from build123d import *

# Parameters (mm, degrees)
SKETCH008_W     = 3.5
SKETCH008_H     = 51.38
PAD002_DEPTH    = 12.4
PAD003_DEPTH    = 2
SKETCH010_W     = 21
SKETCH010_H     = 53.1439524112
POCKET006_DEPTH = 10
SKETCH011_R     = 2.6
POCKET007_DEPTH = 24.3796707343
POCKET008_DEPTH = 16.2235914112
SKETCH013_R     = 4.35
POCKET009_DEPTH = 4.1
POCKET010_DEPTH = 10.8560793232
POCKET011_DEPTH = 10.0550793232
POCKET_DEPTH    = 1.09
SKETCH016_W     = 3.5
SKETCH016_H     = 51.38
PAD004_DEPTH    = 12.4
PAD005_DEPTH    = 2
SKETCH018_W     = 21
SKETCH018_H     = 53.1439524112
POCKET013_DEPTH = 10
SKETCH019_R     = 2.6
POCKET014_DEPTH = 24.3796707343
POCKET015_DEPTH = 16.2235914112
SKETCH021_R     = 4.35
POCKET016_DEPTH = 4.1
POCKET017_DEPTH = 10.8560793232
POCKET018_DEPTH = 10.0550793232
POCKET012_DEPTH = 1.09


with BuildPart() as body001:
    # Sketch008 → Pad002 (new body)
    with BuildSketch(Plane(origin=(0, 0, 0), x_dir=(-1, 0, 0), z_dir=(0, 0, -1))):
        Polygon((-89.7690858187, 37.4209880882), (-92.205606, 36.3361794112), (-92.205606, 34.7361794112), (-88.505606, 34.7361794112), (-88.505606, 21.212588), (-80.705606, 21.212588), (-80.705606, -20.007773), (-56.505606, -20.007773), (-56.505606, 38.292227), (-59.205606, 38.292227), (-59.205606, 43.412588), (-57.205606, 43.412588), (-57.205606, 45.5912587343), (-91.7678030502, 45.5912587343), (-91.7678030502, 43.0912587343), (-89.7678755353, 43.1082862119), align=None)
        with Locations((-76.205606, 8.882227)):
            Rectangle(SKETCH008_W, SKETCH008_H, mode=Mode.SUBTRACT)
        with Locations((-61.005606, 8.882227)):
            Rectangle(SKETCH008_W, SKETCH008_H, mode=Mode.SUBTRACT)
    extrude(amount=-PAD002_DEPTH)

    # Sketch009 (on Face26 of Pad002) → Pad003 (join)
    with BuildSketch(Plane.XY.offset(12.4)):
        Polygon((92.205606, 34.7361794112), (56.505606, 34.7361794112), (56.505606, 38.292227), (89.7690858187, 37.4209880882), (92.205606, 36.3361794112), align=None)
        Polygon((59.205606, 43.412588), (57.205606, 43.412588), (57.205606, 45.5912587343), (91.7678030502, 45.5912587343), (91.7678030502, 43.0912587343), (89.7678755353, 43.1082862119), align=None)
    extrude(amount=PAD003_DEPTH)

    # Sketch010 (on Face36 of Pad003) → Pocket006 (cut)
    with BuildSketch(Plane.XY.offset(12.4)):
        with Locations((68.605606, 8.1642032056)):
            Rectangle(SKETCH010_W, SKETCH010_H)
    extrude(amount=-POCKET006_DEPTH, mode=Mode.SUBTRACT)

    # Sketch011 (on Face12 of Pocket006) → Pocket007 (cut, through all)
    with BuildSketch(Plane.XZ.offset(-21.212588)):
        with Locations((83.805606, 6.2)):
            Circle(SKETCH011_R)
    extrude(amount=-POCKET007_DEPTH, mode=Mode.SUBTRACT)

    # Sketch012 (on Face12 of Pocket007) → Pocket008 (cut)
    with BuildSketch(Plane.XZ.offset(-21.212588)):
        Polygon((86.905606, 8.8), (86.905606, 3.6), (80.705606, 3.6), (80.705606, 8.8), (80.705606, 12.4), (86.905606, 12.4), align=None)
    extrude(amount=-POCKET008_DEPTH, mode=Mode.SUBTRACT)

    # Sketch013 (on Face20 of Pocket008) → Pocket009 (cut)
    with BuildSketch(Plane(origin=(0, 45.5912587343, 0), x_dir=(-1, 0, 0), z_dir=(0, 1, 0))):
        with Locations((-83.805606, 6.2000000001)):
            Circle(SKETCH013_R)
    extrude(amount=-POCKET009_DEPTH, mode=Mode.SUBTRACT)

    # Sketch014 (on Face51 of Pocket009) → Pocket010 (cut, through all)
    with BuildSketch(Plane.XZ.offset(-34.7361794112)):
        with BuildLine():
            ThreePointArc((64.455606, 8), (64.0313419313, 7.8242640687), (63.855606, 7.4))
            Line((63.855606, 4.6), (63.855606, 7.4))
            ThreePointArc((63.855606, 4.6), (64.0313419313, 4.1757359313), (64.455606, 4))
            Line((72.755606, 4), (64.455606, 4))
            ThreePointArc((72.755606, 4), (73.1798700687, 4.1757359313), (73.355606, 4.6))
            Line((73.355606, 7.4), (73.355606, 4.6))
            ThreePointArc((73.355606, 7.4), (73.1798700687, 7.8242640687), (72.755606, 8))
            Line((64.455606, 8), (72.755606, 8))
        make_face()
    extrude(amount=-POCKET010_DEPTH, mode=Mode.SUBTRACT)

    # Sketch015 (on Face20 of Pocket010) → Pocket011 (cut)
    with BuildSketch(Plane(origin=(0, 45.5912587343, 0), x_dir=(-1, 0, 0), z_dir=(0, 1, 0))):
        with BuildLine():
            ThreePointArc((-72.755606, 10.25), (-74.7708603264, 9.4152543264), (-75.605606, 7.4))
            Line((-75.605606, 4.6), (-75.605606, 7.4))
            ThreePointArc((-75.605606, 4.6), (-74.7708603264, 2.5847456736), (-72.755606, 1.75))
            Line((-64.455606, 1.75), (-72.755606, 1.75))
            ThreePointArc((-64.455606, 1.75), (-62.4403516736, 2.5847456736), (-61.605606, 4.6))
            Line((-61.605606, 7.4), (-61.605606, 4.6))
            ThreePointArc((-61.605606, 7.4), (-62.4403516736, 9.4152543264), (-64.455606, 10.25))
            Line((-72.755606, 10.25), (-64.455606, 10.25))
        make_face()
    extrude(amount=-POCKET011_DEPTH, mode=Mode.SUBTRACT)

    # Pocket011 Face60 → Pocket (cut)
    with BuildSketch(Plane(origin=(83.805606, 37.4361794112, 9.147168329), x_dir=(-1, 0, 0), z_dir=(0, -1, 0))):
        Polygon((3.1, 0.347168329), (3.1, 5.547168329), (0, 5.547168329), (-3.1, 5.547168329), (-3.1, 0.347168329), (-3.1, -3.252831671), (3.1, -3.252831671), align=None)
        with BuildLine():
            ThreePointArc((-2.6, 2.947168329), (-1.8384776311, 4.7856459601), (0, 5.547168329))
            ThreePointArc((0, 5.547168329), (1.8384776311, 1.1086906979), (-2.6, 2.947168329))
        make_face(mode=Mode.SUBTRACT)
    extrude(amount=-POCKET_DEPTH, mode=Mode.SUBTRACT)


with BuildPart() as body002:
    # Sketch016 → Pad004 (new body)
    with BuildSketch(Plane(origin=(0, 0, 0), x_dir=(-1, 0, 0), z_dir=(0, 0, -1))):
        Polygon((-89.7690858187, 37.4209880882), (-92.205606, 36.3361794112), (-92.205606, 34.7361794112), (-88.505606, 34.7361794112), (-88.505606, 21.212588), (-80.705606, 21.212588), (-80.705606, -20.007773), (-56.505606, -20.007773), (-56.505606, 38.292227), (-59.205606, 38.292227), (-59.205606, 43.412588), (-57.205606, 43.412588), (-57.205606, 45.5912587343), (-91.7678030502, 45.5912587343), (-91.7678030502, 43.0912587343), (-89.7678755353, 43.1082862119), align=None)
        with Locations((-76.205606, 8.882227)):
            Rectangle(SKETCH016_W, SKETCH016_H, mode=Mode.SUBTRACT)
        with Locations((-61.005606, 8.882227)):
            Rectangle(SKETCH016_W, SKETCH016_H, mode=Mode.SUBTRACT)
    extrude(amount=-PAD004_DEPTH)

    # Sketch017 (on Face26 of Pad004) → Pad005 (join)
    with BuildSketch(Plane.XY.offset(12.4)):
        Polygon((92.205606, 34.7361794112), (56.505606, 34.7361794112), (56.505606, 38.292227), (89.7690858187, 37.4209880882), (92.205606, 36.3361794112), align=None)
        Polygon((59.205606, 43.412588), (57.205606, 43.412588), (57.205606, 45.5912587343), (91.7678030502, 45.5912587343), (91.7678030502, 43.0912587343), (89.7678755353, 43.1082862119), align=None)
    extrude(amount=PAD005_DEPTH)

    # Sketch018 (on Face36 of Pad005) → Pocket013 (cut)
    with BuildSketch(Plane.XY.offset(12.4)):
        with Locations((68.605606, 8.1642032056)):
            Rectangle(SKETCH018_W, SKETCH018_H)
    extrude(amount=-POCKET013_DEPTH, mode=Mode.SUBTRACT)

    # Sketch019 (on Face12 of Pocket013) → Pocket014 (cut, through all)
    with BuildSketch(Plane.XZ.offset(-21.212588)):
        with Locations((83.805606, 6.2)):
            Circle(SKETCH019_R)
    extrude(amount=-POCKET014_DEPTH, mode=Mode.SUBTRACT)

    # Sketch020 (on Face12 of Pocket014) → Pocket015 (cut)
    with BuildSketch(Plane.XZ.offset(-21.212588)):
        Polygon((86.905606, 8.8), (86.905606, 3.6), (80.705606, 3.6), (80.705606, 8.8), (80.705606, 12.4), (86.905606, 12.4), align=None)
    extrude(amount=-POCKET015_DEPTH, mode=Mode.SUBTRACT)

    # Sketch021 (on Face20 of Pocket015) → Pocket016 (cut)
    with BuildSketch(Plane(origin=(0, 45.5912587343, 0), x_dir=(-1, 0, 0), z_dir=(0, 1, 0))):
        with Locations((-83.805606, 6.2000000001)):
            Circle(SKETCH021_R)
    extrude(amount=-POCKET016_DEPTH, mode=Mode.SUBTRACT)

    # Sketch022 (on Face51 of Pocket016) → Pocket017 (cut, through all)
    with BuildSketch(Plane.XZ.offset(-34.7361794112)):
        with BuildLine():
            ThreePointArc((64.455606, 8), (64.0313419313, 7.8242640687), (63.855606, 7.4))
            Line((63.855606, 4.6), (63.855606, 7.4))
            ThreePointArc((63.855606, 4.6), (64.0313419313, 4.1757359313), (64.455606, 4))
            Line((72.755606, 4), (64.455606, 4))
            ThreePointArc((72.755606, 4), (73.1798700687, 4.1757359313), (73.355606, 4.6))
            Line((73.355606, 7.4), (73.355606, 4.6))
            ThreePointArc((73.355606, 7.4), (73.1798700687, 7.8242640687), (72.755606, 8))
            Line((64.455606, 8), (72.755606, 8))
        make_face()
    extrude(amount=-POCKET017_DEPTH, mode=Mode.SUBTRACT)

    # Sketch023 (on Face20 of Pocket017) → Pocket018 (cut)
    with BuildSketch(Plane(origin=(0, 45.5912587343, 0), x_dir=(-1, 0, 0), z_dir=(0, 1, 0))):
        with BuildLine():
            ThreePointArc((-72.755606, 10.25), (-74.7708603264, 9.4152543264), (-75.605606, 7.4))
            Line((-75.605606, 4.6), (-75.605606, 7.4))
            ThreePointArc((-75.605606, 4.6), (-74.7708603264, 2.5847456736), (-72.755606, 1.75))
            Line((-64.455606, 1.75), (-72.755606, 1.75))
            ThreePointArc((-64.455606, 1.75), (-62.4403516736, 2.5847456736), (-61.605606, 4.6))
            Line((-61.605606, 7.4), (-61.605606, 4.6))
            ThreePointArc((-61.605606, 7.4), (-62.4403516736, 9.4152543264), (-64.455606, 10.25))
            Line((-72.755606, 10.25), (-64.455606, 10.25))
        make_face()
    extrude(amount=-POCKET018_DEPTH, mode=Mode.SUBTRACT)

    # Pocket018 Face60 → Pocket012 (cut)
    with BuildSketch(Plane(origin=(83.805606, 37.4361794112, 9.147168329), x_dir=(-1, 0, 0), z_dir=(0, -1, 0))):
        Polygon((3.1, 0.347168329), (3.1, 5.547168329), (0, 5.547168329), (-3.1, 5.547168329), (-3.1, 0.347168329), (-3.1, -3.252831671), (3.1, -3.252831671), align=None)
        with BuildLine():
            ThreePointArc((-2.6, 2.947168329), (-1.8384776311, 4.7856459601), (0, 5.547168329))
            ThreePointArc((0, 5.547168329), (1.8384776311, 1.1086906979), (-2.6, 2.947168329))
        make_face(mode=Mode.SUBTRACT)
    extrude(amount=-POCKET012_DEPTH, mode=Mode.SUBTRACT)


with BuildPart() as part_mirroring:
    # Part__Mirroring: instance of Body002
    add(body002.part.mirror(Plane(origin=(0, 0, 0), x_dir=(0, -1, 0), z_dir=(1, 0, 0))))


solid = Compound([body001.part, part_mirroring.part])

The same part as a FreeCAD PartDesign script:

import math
import FreeCAD as App
import Part
import Sketcher
Q = App.Units.Quantity

doc = App.newDocument("Part")
body = doc.addObject("PartDesign::Body", "Body")

# Sketch on XY plane
sketch1 = body.newObject("Sketcher::SketchObject", "Sketch")
sketch1.AttachmentSupport = (doc.getObject("XY_Plane"), [""])
sketch1.MapMode = "FlatFace"
sketch1.addGeometry([
    Part.LineSegment(App.Vector(89.8, 37.4, 0), App.Vector(92.2, 36.3, 0)),  # 0
    Part.LineSegment(App.Vector(92.2, 36.3, 0), App.Vector(92.2, 34.7, 0)),  # 1
    Part.LineSegment(App.Vector(92.2, 34.7, 0), App.Vector(88.5, 34.7, 0)),  # 2
    Part.LineSegment(App.Vector(88.5, 34.7, 0), App.Vector(88.5, 21.2, 0)),  # 3
    Part.LineSegment(App.Vector(88.5, 21.2, 0), App.Vector(80.7, 21.2, 0)),  # 4
    Part.LineSegment(App.Vector(80.7, 21.2, 0), App.Vector(80.7, -20, 0)),  # 5
    Part.LineSegment(App.Vector(80.7, -20, 0), App.Vector(56.5, -20, 0)),  # 6
    Part.LineSegment(App.Vector(56.5, -20, 0), App.Vector(56.5, 38.3, 0)),  # 7
    Part.LineSegment(App.Vector(56.5, 38.3, 0), App.Vector(59.2, 38.3, 0)),  # 8
    Part.LineSegment(App.Vector(59.2, 38.3, 0), App.Vector(59.2, 43.4, 0)),  # 9
    Part.LineSegment(App.Vector(59.2, 43.4, 0), App.Vector(57.2, 43.4, 0)),  # 10
    Part.LineSegment(App.Vector(57.2, 43.4, 0), App.Vector(57.2, 45.6, 0)),  # 11
    Part.LineSegment(App.Vector(57.2, 45.6, 0), App.Vector(91.8, 45.6, 0)),  # 12
    Part.LineSegment(App.Vector(91.8, 45.6, 0), App.Vector(91.8, 43.1, 0)),  # 13
    Part.LineSegment(App.Vector(91.8, 43.1, 0), App.Vector(89.8, 43.1, 0)),  # 14
    Part.LineSegment(App.Vector(89.8, 43.1, 0), App.Vector(89.8, 37.4, 0)),  # 15
    Part.LineSegment(App.Vector(74.5, -16.8, 0), App.Vector(78, -16.8, 0)),  # 16
    Part.LineSegment(App.Vector(78, -16.8, 0), App.Vector(78, 34.6, 0)),  # 17
    Part.LineSegment(App.Vector(78, 34.6, 0), App.Vector(74.5, 34.6, 0)),  # 18
    Part.LineSegment(App.Vector(74.5, 34.6, 0), App.Vector(74.5, -16.8, 0)),  # 19
    Part.LineSegment(App.Vector(59.3, -16.8, 0), App.Vector(62.8, -16.8, 0)),  # 20
    Part.LineSegment(App.Vector(62.8, -16.8, 0), App.Vector(62.8, 34.6, 0)),  # 21
    Part.LineSegment(App.Vector(62.8, 34.6, 0), App.Vector(59.3, 34.6, 0)),  # 22
    Part.LineSegment(App.Vector(59.3, 34.6, 0), App.Vector(59.3, -16.8, 0)),  # 23
], False)
sketch1.addConstraint([
    Sketcher.Constraint("Coincident", 0, 2, 1, 1),
    Sketcher.Constraint("Coincident", 1, 2, 2, 1),
    Sketcher.Constraint("Coincident", 2, 2, 3, 1),
    Sketcher.Constraint("Coincident", 3, 2, 4, 1),
    Sketcher.Constraint("Coincident", 4, 2, 5, 1),
    Sketcher.Constraint("Coincident", 5, 2, 6, 1),
    Sketcher.Constraint("Coincident", 6, 2, 7, 1),
    Sketcher.Constraint("Coincident", 7, 2, 8, 1),
    Sketcher.Constraint("Coincident", 8, 2, 9, 1),
    Sketcher.Constraint("Coincident", 9, 2, 10, 1),
    Sketcher.Constraint("Coincident", 10, 2, 11, 1),
    Sketcher.Constraint("Coincident", 11, 2, 12, 1),
    Sketcher.Constraint("Coincident", 12, 2, 13, 1),
    Sketcher.Constraint("Coincident", 13, 2, 14, 1),
    Sketcher.Constraint("Coincident", 14, 2, 15, 1),
    Sketcher.Constraint("Coincident", 15, 2, 0, 1),
    Sketcher.Constraint("Coincident", 16, 2, 17, 1),
    Sketcher.Constraint("Coincident", 17, 2, 18, 1),
    Sketcher.Constraint("Coincident", 18, 2, 19, 1),
    Sketcher.Constraint("Coincident", 19, 2, 16, 1),
    Sketcher.Constraint("Coincident", 20, 2, 21, 1),
    Sketcher.Constraint("Coincident", 21, 2, 22, 1),
    Sketcher.Constraint("Coincident", 22, 2, 23, 1),
    Sketcher.Constraint("Coincident", 23, 2, 20, 1),
    Sketcher.Constraint("Vertical", 1),
    Sketcher.Constraint("Horizontal", 2),
    Sketcher.Constraint("Vertical", 3),
    Sketcher.Constraint("Horizontal", 4),
    Sketcher.Constraint("Vertical", 5),
    Sketcher.Constraint("Horizontal", 6),
    Sketcher.Constraint("Vertical", 7),
    Sketcher.Constraint("Horizontal", 8),
    Sketcher.Constraint("Vertical", 9),
    Sketcher.Constraint("Horizontal", 10),
    Sketcher.Constraint("Vertical", 11),
    Sketcher.Constraint("Horizontal", 12),
    Sketcher.Constraint("Vertical", 13),
    Sketcher.Constraint("Horizontal", 16),
    Sketcher.Constraint("Vertical", 17),
    Sketcher.Constraint("Horizontal", 18),
    Sketcher.Constraint("Vertical", 19),
    Sketcher.Constraint("Horizontal", 20),
    Sketcher.Constraint("Vertical", 21),
    Sketcher.Constraint("Horizontal", 22),
    Sketcher.Constraint("Vertical", 23),
    Sketcher.Constraint("Horizontal", 19, 2, 20, 2),
    Sketcher.Constraint("Horizontal", 18, 2, 21, 2),
    Sketcher.Constraint("Equal", 18, 20),
    Sketcher.Constraint("DistanceX", 10, 2, 10, 1, Q("2 mm")),
    Sketcher.Constraint("Angle", 0, Q("-24 deg")),
    Sketcher.Constraint("Distance", 14, Q("2 mm")),
    Sketcher.Constraint("DistanceX", 2, 2, 2, 1, Q("3.7 mm")),
    Sketcher.Constraint("DistanceX", 4, 2, 4, 1, Q("7.8 mm")),
    Sketcher.Constraint("DistanceX", 6, 2, 6, 1, Q("24.2 mm")),
    Sketcher.Constraint("DistanceX", 8, 1, 8, 2, Q("2.7 mm")),
    Sketcher.Constraint("DistanceX", 16, 1, 16, 2, Q("3.5 mm")),
    Sketcher.Constraint("DistanceY", 1, 2, 1, 1, Q("1.6 mm")),
    Sketcher.Constraint("DistanceY", 7, 1, 7, 2, Q("58.3 mm")),
    Sketcher.Constraint("DistanceY", 13, 2, 13, 1, Q("2.5 mm")),
    Sketcher.Constraint("DistanceY", 17, 1, 17, 2, Q("51.38 mm")),
    Sketcher.Constraint("DistanceY", 4, 2, 9, 2, Q("22.2 mm")),
    Sketcher.Constraint("DistanceY", 5, 2, 16, 2, Q("3.2 mm")),
    Sketcher.Constraint("DistanceX", 20, 2, 19, 2, Q("11.7 mm")),
    Sketcher.Constraint("DistanceX", 16, 2, 5, 2, Q("2.75 mm")),
    Sketcher.Constraint("Distance", 15, Q("5.687298 mm")),
    Sketcher.Constraint("DistanceY", 3, 2, 3, 1, Q("13.523591 mm")),
    Sketcher.Constraint("DistanceY", 5, 2, 5, 1, Q("41.220361 mm")),
    Sketcher.Constraint("DistanceY", 11, 1, 11, 2, Q("2.178671 mm")),
    Sketcher.Constraint("DistanceX", 12, 1, 12, 2, Q("34.562197 mm")),
    Sketcher.Constraint("DistanceY", -1, 1, 0, 2, Q("36.336179 mm")),
    Sketcher.Constraint("DistanceY", -1, 1, 15, 2, Q("37.420988 mm")),
    Sketcher.Constraint("DistanceX", -1, 1, 0, 2, Q("92.205606 mm")),
])
pad1 = body.newObject("PartDesign::Pad", "Pad")
pad1.Profile = sketch1
pad1.Length = 12.4

# Sketch on XY plane
sketch2 = body.newObject("Sketcher::SketchObject", "Sketch001")
sketch2.AttachmentSupport = (doc.getObject("XY_Plane"), [""])
sketch2.MapMode = "FlatFace"
sketch2.AttachmentOffset = App.Placement(App.Vector(0, 0, 12.4), App.Rotation())
sketch2.addGeometry([
    Part.LineSegment(App.Vector(56.5, 34.7, 0), App.Vector(92.2, 34.7, 0)),  # 0
    Part.LineSegment(App.Vector(92.2, 34.7, 0), App.Vector(92.2, 36.3, 0)),  # 1
    Part.LineSegment(App.Vector(92.2, 36.3, 0), App.Vector(89.8, 37.4, 0)),  # 2
    Part.LineSegment(App.Vector(89.8, 37.4, 0), App.Vector(56.5, 38.3, 0)),  # 3
    Part.LineSegment(App.Vector(56.5, 38.3, 0), App.Vector(56.5, 34.7, 0)),  # 4
    Part.LineSegment(App.Vector(57.2, 43.4, 0), App.Vector(59.2, 43.4, 0)),  # 5
    Part.LineSegment(App.Vector(59.2, 43.4, 0), App.Vector(89.8, 43.1, 0)),  # 6
    Part.LineSegment(App.Vector(89.8, 43.1, 0), App.Vector(91.8, 43.1, 0)),  # 7
    Part.LineSegment(App.Vector(91.8, 43.1, 0), App.Vector(91.8, 45.6, 0)),  # 8
    Part.LineSegment(App.Vector(91.8, 45.6, 0), App.Vector(57.2, 45.6, 0)),  # 9
    Part.LineSegment(App.Vector(57.2, 45.6, 0), App.Vector(57.2, 43.4, 0)),  # 10
], False)
sketch2.addConstraint([
    Sketcher.Constraint("Coincident", 0, 2, 1, 1),
    Sketcher.Constraint("Coincident", 1, 2, 2, 1),
    Sketcher.Constraint("Coincident", 2, 2, 3, 1),
    Sketcher.Constraint("Coincident", 3, 2, 4, 1),
    Sketcher.Constraint("Coincident", 4, 2, 0, 1),
    Sketcher.Constraint("Coincident", 5, 2, 6, 1),
    Sketcher.Constraint("Coincident", 6, 2, 7, 1),
    Sketcher.Constraint("Coincident", 7, 2, 8, 1),
    Sketcher.Constraint("Coincident", 8, 2, 9, 1),
    Sketcher.Constraint("Coincident", 9, 2, 10, 1),
    Sketcher.Constraint("Coincident", 10, 2, 5, 1),
    Sketcher.Constraint("Horizontal", 0),
    Sketcher.Constraint("Vertical", 1),
    Sketcher.Constraint("Vertical", 4),
    Sketcher.Constraint("Horizontal", 5),
    Sketcher.Constraint("Vertical", 8),
    Sketcher.Constraint("Horizontal", 9),
    Sketcher.Constraint("Vertical", 10),
    Sketcher.Constraint("DistanceX", 5, 1, 5, 2, Q("2 mm")),
    Sketcher.Constraint("Angle", 2, Q("156 deg")),
    Sketcher.Constraint("Distance", 7, Q("2 mm")),
    Sketcher.Constraint("DistanceX", 0, 1, 0, 2, Q("35.7 mm")),
    Sketcher.Constraint("DistanceY", 1, 1, 1, 2, Q("1.6 mm")),
    Sketcher.Constraint("DistanceY", 8, 1, 8, 2, Q("2.5 mm")),
    Sketcher.Constraint("DistanceX", 5, 2, 1, 2, Q("33 mm")),
    Sketcher.Constraint("DistanceY", 10, 2, 10, 1, Q("2.178671 mm")),
    Sketcher.Constraint("DistanceY", 2, 2, 5, 2, Q("5.9916 mm")),
    Sketcher.Constraint("DistanceY", 2, 2, 6, 2, Q("5.687298 mm")),
    Sketcher.Constraint("DistanceX", 9, 2, 9, 1, Q("34.562197 mm")),
    Sketcher.Constraint("DistanceY", 4, 2, 4, 1, Q("3.556048 mm")),
    Sketcher.Constraint("DistanceY", -1, 1, 0, 2, Q("34.736179 mm")),
    Sketcher.Constraint("DistanceY", -1, 1, 2, 2, Q("37.420988 mm")),
    Sketcher.Constraint("DistanceX", -1, 1, 0, 2, Q("92.205606 mm")),
])
pad2 = body.newObject("PartDesign::Pad", "Pad001")
pad2.Profile = sketch2
pad2.Length = 2

# Sketch on XY plane
sketch3 = body.newObject("Sketcher::SketchObject", "Sketch002")
sketch3.AttachmentSupport = (doc.getObject("XY_Plane"), [""])
sketch3.MapMode = "FlatFace"
sketch3.AttachmentOffset = App.Placement(App.Vector(0, 0, 12.4), App.Rotation())
sketch3.addGeometry([
    Part.LineSegment(App.Vector(58, 35, 0), App.Vector(58, -18, 0)),
    Part.LineSegment(App.Vector(58, -18, 0), App.Vector(79, -18, 0)),
    Part.LineSegment(App.Vector(79, -18, 0), App.Vector(79, 35, 0)),
    Part.LineSegment(App.Vector(79, 35, 0), App.Vector(58, 35, 0)),
], False)
sketch3.addConstraint([
    Sketcher.Constraint("Coincident", 0, 2, 1, 1),
    Sketcher.Constraint("Coincident", 1, 2, 2, 1),
    Sketcher.Constraint("Coincident", 2, 2, 3, 1),
    Sketcher.Constraint("Coincident", 3, 2, 0, 1),
    Sketcher.Constraint("Vertical", 0),
    Sketcher.Constraint("Horizontal", 1),
    Sketcher.Constraint("Vertical", 2),
    Sketcher.Constraint("Horizontal", 3),
    Sketcher.Constraint("DistanceX", 1, 1, 1, 2, Q("21 mm")),
    Sketcher.Constraint("DistanceY", 0, 2, 0, 1, Q("53.143952 mm")),
    Sketcher.Constraint("DistanceY", -1, 1, 2, 2, Q("34.736179 mm")),
    Sketcher.Constraint("DistanceX", -1, 1, 0, 2, Q("58.105606 mm")),
])
pocket1 = body.newObject("PartDesign::Pocket", "Pocket")
pocket1.Profile = sketch3
pocket1.Length = 10

# Sketch on XZ plane
sketch4 = body.newObject("Sketcher::SketchObject", "Sketch003")
sketch4.AttachmentSupport = (doc.getObject("XZ_Plane"), [""])
sketch4.MapMode = "FlatFace"
sketch4.AttachmentOffset = App.Placement(App.Vector(0, 0, -21.212588), App.Rotation())
sketch4.addGeometry(Part.Circle(App.Vector(83.8, 6.2, 0), App.Vector(0, 0, 1), 2.6), False)
sketch4.addConstraint([
    Sketcher.Constraint("Diameter", 0, Q("5.2 mm")),
    Sketcher.Constraint("DistanceY", -1, 1, 0, 3, Q("6.2 mm")),
    Sketcher.Constraint("DistanceX", -1, 1, 0, 3, Q("83.805606 mm")),
])
pocket2 = body.newObject("PartDesign::Pocket", "Pocket001")
pocket2.Profile = sketch4
pocket2.Type = "ThroughAll"

# Sketch on XZ plane
sketch5 = body.newObject("Sketcher::SketchObject", "Sketch004")
sketch5.AttachmentSupport = (doc.getObject("XZ_Plane"), [""])
sketch5.MapMode = "FlatFace"
sketch5.AttachmentOffset = App.Placement(App.Vector(0, 0, -21.212588), App.Rotation())
sketch5.addGeometry([
    Part.LineSegment(App.Vector(87, 4, 0), App.Vector(87, 12, 0)),
    Part.LineSegment(App.Vector(87, 12, 0), App.Vector(81, 12, 0)),
    Part.LineSegment(App.Vector(81, 12, 0), App.Vector(81, 4, 0)),
    Part.LineSegment(App.Vector(81, 4, 0), App.Vector(87, 4, 0)),
], False)
sketch5.addConstraint([
    Sketcher.Constraint("Coincident", 0, 2, 1, 1),
    Sketcher.Constraint("Coincident", 1, 2, 2, 1),
    Sketcher.Constraint("Coincident", 2, 2, 3, 1),
    Sketcher.Constraint("Coincident", 3, 2, 0, 1),
    Sketcher.Constraint("Vertical", 0),
    Sketcher.Constraint("Horizontal", 1),
    Sketcher.Constraint("Vertical", 2),
    Sketcher.Constraint("Horizontal", 3),
    Sketcher.Constraint("DistanceX", 1, 2, 1, 1, Q("6.2 mm")),
    Sketcher.Constraint("DistanceY", 0, 1, 0, 2, Q("8.8 mm")),
    Sketcher.Constraint("DistanceY", -1, 1, 0, 2, Q("12.4 mm")),
    Sketcher.Constraint("DistanceX", -1, 1, 0, 2, Q("86.905606 mm")),
])
pocket3 = body.newObject("PartDesign::Pocket", "Pocket002")
pocket3.Profile = sketch5
pocket3.Length = 16.223591

# Sketch on XZ plane
sketch6 = body.newObject("Sketcher::SketchObject", "Sketch005")
sketch6.AttachmentSupport = (doc.getObject("XZ_Plane"), [""])
sketch6.MapMode = "FlatFace"
sketch6.AttachmentOffset = App.Placement(App.Vector(0, 0, -45.591259), App.Rotation())
sketch6.addGeometry(Part.Circle(App.Vector(83.8, 6.2, 0), App.Vector(0, 0, 1), 4.3), False)
sketch6.addConstraint([
    Sketcher.Constraint("Diameter", 0, Q("8.7 mm")),
    Sketcher.Constraint("DistanceY", -1, 1, 0, 3, Q("6.2 mm")),
    Sketcher.Constraint("DistanceX", -1, 1, 0, 3, Q("83.805606 mm")),
])
pocket4 = body.newObject("PartDesign::Pocket", "Pocket003")
pocket4.Profile = sketch6
pocket4.Length = 4.1
pocket4.Reversed = True

# Sketch on XZ plane
sketch7 = body.newObject("Sketcher::SketchObject", "Sketch006")
sketch7.AttachmentSupport = (doc.getObject("XZ_Plane"), [""])
sketch7.MapMode = "FlatFace"
sketch7.AttachmentOffset = App.Placement(App.Vector(0, 0, -34.736179), App.Rotation())
sketch7.addGeometry([
    Part.ArcOfCircle(Part.Circle(App.Vector(64.5, 7.4, 0), App.Vector(0, 0, 1), 0.6), math.radians(90), math.radians(180)),  # 0
    Part.LineSegment(App.Vector(63.9, 7.4, 0), App.Vector(63.9, 4.6, 0)),  # 1
    Part.ArcOfCircle(Part.Circle(App.Vector(64.5, 4.6, 0), App.Vector(0, 0, 1), 0.6), math.radians(180), math.radians(270)),  # 2
    Part.LineSegment(App.Vector(64.5, 4, 0), App.Vector(72.8, 4, 0)),  # 3
    Part.ArcOfCircle(Part.Circle(App.Vector(72.8, 4.6, 0), App.Vector(0, 0, 1), 0.6), math.radians(-90), math.radians(0)),  # 4
    Part.LineSegment(App.Vector(73.4, 4.6, 0), App.Vector(73.4, 7.4, 0)),  # 5
    Part.ArcOfCircle(Part.Circle(App.Vector(72.8, 7.4, 0), App.Vector(0, 0, 1), 0.6), math.radians(0), math.radians(90)),  # 6
    Part.LineSegment(App.Vector(72.8, 8, 0), App.Vector(64.5, 8, 0)),  # 7
], False)
sketch7.addConstraint([
    Sketcher.Constraint("Tangent", 0, 2, 1, 1),
    Sketcher.Constraint("Tangent", 1, 2, 2, 1),
    Sketcher.Constraint("Tangent", 2, 2, 3, 1),
    Sketcher.Constraint("Tangent", 3, 2, 4, 1),
    Sketcher.Constraint("Tangent", 4, 2, 5, 1),
    Sketcher.Constraint("Tangent", 5, 2, 6, 1),
    Sketcher.Constraint("Tangent", 6, 2, 7, 1),
    Sketcher.Constraint("Tangent", 7, 2, 0, 1),
    Sketcher.Constraint("Vertical", 1),
    Sketcher.Constraint("Horizontal", 3),
    Sketcher.Constraint("Vertical", 5),
    Sketcher.Constraint("Horizontal", 7),
    Sketcher.Constraint("Equal", 0, 2),
    Sketcher.Constraint("Equal", 2, 4),
    Sketcher.Constraint("Equal", 4, 6),
    Sketcher.Constraint("Radius", 0, Q("0.6 mm")),
    Sketcher.Constraint("DistanceX", 3, 1, 3, 2, Q("8.3 mm")),
    Sketcher.Constraint("DistanceY", 1, 2, 1, 1, Q("2.8 mm")),
    Sketcher.Constraint("DistanceY", -1, 1, 2, 2, Q("4 mm")),
    Sketcher.Constraint("DistanceX", -1, 1, 0, 3, Q("64.455606 mm")),
])
pocket5 = body.newObject("PartDesign::Pocket", "Pocket004")
pocket5.Profile = sketch7
pocket5.Type = "ThroughAll"

# Sketch on XZ plane
sketch8 = body.newObject("Sketcher::SketchObject", "Sketch007")
sketch8.AttachmentSupport = (doc.getObject("XZ_Plane"), [""])
sketch8.MapMode = "FlatFace"
sketch8.AttachmentOffset = App.Placement(App.Vector(0, 0, -45.591259), App.Rotation())
sketch8.addGeometry([
    Part.ArcOfCircle(Part.Circle(App.Vector(72.8, 7.4, 0), App.Vector(0, 0, 1), 2.9), math.radians(0), math.radians(90)),  # 0
    Part.LineSegment(App.Vector(75.6, 7.4, 0), App.Vector(75.6, 4.6, 0)),  # 1
    Part.ArcOfCircle(Part.Circle(App.Vector(72.8, 4.6, 0), App.Vector(0, 0, 1), 2.9), math.radians(-90), math.radians(0)),  # 2
    Part.LineSegment(App.Vector(72.8, 1.8, 0), App.Vector(64.5, 1.8, 0)),  # 3
    Part.ArcOfCircle(Part.Circle(App.Vector(64.5, 4.6, 0), App.Vector(0, 0, 1), 2.9), math.radians(180), math.radians(270)),  # 4
    Part.LineSegment(App.Vector(61.6, 4.6, 0), App.Vector(61.6, 7.4, 0)),  # 5
    Part.ArcOfCircle(Part.Circle(App.Vector(64.5, 7.4, 0), App.Vector(0, 0, 1), 2.9), math.radians(90), math.radians(180)),  # 6
    Part.LineSegment(App.Vector(64.5, 10.2, 0), App.Vector(72.8, 10.2, 0)),  # 7
], False)
sketch8.addConstraint([
    Sketcher.Constraint("Tangent", 0, 1, 1, 1),
    Sketcher.Constraint("Tangent", 1, 2, 2, 2),
    Sketcher.Constraint("Tangent", 2, 1, 3, 1),
    Sketcher.Constraint("Tangent", 3, 2, 4, 2),
    Sketcher.Constraint("Tangent", 4, 1, 5, 1),
    Sketcher.Constraint("Tangent", 5, 2, 6, 2),
    Sketcher.Constraint("Tangent", 6, 1, 7, 1),
    Sketcher.Constraint("Tangent", 7, 2, 0, 2),
    Sketcher.Constraint("Vertical", 1),
    Sketcher.Constraint("Horizontal", 3),
    Sketcher.Constraint("Vertical", 5),
    Sketcher.Constraint("Horizontal", 7),
    Sketcher.Constraint("Equal", 0, 2),
    Sketcher.Constraint("Equal", 2, 4),
    Sketcher.Constraint("Equal", 4, 6),
    Sketcher.Constraint("Radius", 0, Q("2.85 mm")),
    Sketcher.Constraint("DistanceX", 3, 2, 3, 1, Q("8.3 mm")),
    Sketcher.Constraint("DistanceY", 1, 2, 1, 1, Q("2.8 mm")),
    Sketcher.Constraint("DistanceY", -1, 1, 0, 3, Q("7.4 mm")),
    Sketcher.Constraint("DistanceX", -1, 1, 0, 3, Q("72.755606 mm")),
])
pocket6 = body.newObject("PartDesign::Pocket", "Pocket005")
pocket6.Profile = sketch8
pocket6.Length = 10.055079
pocket6.Reversed = True

# Sketch on XZ plane
sketch9 = body.newObject("Sketcher::SketchObject", "Sketch008")
sketch9.AttachmentSupport = (doc.getObject("XZ_Plane"), [""])
sketch9.MapMode = "FlatFace"
sketch9.AttachmentOffset = App.Placement(App.Vector(0, 0, -37.436179), App.Rotation())
sketch9.addGeometry([
    Part.LineSegment(App.Vector(80.7, 12.4, 0), App.Vector(80.7, 3.6, 0)),  # 0
    Part.LineSegment(App.Vector(80.7, 3.6, 0), App.Vector(83.8, 3.6, 0)),  # 1
    Part.LineSegment(App.Vector(83.8, 3.6, 0), App.Vector(86.9, 3.6, 0)),  # 2
    Part.LineSegment(App.Vector(86.9, 3.6, 0), App.Vector(86.9, 12.4, 0)),  # 3
    Part.LineSegment(App.Vector(86.9, 12.4, 0), App.Vector(80.7, 12.4, 0)),  # 4
    Part.ArcOfCircle(Part.Circle(App.Vector(83.8, 6.2, 0), App.Vector(0, 0, 1), 2.6), math.radians(-90), math.radians(0)),  # 5
    Part.ArcOfCircle(Part.Circle(App.Vector(83.8, 6.2, 0), App.Vector(0, 0, 1), 2.6), math.radians(0), math.radians(270)),  # 6
], False)
sketch9.addConstraint([
    Sketcher.Constraint("Coincident", 0, 2, 1, 1),
    Sketcher.Constraint("Coincident", 1, 2, 2, 1),
    Sketcher.Constraint("Coincident", 2, 2, 3, 1),
    Sketcher.Constraint("Coincident", 3, 2, 4, 1),
    Sketcher.Constraint("Coincident", 4, 2, 0, 1),
    Sketcher.Constraint("Tangent", 5, 1, 6, 2),
    Sketcher.Constraint("Coincident", 6, 1, 5, 2),
    Sketcher.Constraint("Vertical", 0),
    Sketcher.Constraint("Horizontal", 1),
    Sketcher.Constraint("Horizontal", 2),
    Sketcher.Constraint("Vertical", 3),
    Sketcher.Constraint("Horizontal", 4),
    Sketcher.Constraint("Coincident", 5, 1, 1, 2),
    Sketcher.Constraint("Horizontal", 5, 3, 6, 1),
    Sketcher.Constraint("Vertical", 6, 3, 1, 2),
    Sketcher.Constraint("Equal", 1, 2),
    Sketcher.Constraint("Radius", 5, Q("2.6 mm")),
    Sketcher.Constraint("DistanceX", 1, 1, 1, 2, Q("3.1 mm")),
    Sketcher.Constraint("DistanceY", 0, 2, 0, 1, Q("8.8 mm")),
    Sketcher.Constraint("DistanceY", -1, 1, 5, 3, Q("6.2 mm")),
    Sketcher.Constraint("DistanceX", -1, 1, 5, 3, Q("83.805606 mm")),
])
pocket7 = body.newObject("PartDesign::Pocket", "Pocket006")
pocket7.Profile = sketch9
pocket7.Length = 1.09
body2 = doc.addObject("PartDesign::Body", "Body001")

# Sketch on XY plane
sketch10 = body2.newObject("Sketcher::SketchObject", "Sketch009")
sketch10.AttachmentSupport = (doc.getObject("XY_Plane001"), [""])
sketch10.MapMode = "FlatFace"
sketch10.addGeometry([
    Part.LineSegment(App.Vector(89.8, 37.4, 0), App.Vector(92.2, 36.3, 0)),  # 0
    Part.LineSegment(App.Vector(92.2, 36.3, 0), App.Vector(92.2, 34.7, 0)),  # 1
    Part.LineSegment(App.Vector(92.2, 34.7, 0), App.Vector(88.5, 34.7, 0)),  # 2
    Part.LineSegment(App.Vector(88.5, 34.7, 0), App.Vector(88.5, 21.2, 0)),  # 3
    Part.LineSegment(App.Vector(88.5, 21.2, 0), App.Vector(80.7, 21.2, 0)),  # 4
    Part.LineSegment(App.Vector(80.7, 21.2, 0), App.Vector(80.7, -20, 0)),  # 5
    Part.LineSegment(App.Vector(80.7, -20, 0), App.Vector(56.5, -20, 0)),  # 6
    Part.LineSegment(App.Vector(56.5, -20, 0), App.Vector(56.5, 38.3, 0)),  # 7
    Part.LineSegment(App.Vector(56.5, 38.3, 0), App.Vector(59.2, 38.3, 0)),  # 8
    Part.LineSegment(App.Vector(59.2, 38.3, 0), App.Vector(59.2, 43.4, 0)),  # 9
    Part.LineSegment(App.Vector(59.2, 43.4, 0), App.Vector(57.2, 43.4, 0)),  # 10
    Part.LineSegment(App.Vector(57.2, 43.4, 0), App.Vector(57.2, 45.6, 0)),  # 11
    Part.LineSegment(App.Vector(57.2, 45.6, 0), App.Vector(91.8, 45.6, 0)),  # 12
    Part.LineSegment(App.Vector(91.8, 45.6, 0), App.Vector(91.8, 43.1, 0)),  # 13
    Part.LineSegment(App.Vector(91.8, 43.1, 0), App.Vector(89.8, 43.1, 0)),  # 14
    Part.LineSegment(App.Vector(89.8, 43.1, 0), App.Vector(89.8, 37.4, 0)),  # 15
    Part.LineSegment(App.Vector(74.5, -16.8, 0), App.Vector(78, -16.8, 0)),  # 16
    Part.LineSegment(App.Vector(78, -16.8, 0), App.Vector(78, 34.6, 0)),  # 17
    Part.LineSegment(App.Vector(78, 34.6, 0), App.Vector(74.5, 34.6, 0)),  # 18
    Part.LineSegment(App.Vector(74.5, 34.6, 0), App.Vector(74.5, -16.8, 0)),  # 19
    Part.LineSegment(App.Vector(59.3, -16.8, 0), App.Vector(62.8, -16.8, 0)),  # 20
    Part.LineSegment(App.Vector(62.8, -16.8, 0), App.Vector(62.8, 34.6, 0)),  # 21
    Part.LineSegment(App.Vector(62.8, 34.6, 0), App.Vector(59.3, 34.6, 0)),  # 22
    Part.LineSegment(App.Vector(59.3, 34.6, 0), App.Vector(59.3, -16.8, 0)),  # 23
], False)
sketch10.addConstraint([
    Sketcher.Constraint("Coincident", 0, 2, 1, 1),
    Sketcher.Constraint("Coincident", 1, 2, 2, 1),
    Sketcher.Constraint("Coincident", 2, 2, 3, 1),
    Sketcher.Constraint("Coincident", 3, 2, 4, 1),
    Sketcher.Constraint("Coincident", 4, 2, 5, 1),
    Sketcher.Constraint("Coincident", 5, 2, 6, 1),
    Sketcher.Constraint("Coincident", 6, 2, 7, 1),
    Sketcher.Constraint("Coincident", 7, 2, 8, 1),
    Sketcher.Constraint("Coincident", 8, 2, 9, 1),
    Sketcher.Constraint("Coincident", 9, 2, 10, 1),
    Sketcher.Constraint("Coincident", 10, 2, 11, 1),
    Sketcher.Constraint("Coincident", 11, 2, 12, 1),
    Sketcher.Constraint("Coincident", 12, 2, 13, 1),
    Sketcher.Constraint("Coincident", 13, 2, 14, 1),
    Sketcher.Constraint("Coincident", 14, 2, 15, 1),
    Sketcher.Constraint("Coincident", 15, 2, 0, 1),
    Sketcher.Constraint("Coincident", 16, 2, 17, 1),
    Sketcher.Constraint("Coincident", 17, 2, 18, 1),
    Sketcher.Constraint("Coincident", 18, 2, 19, 1),
    Sketcher.Constraint("Coincident", 19, 2, 16, 1),
    Sketcher.Constraint("Coincident", 20, 2, 21, 1),
    Sketcher.Constraint("Coincident", 21, 2, 22, 1),
    Sketcher.Constraint("Coincident", 22, 2, 23, 1),
    Sketcher.Constraint("Coincident", 23, 2, 20, 1),
    Sketcher.Constraint("Vertical", 1),
    Sketcher.Constraint("Horizontal", 2),
    Sketcher.Constraint("Vertical", 3),
    Sketcher.Constraint("Horizontal", 4),
    Sketcher.Constraint("Vertical", 5),
    Sketcher.Constraint("Horizontal", 6),
    Sketcher.Constraint("Vertical", 7),
    Sketcher.Constraint("Horizontal", 8),
    Sketcher.Constraint("Vertical", 9),
    Sketcher.Constraint("Horizontal", 10),
    Sketcher.Constraint("Vertical", 11),
    Sketcher.Constraint("Horizontal", 12),
    Sketcher.Constraint("Vertical", 13),
    Sketcher.Constraint("Horizontal", 16),
    Sketcher.Constraint("Vertical", 17),
    Sketcher.Constraint("Horizontal", 18),
    Sketcher.Constraint("Vertical", 19),
    Sketcher.Constraint("Horizontal", 20),
    Sketcher.Constraint("Vertical", 21),
    Sketcher.Constraint("Horizontal", 22),
    Sketcher.Constraint("Vertical", 23),
    Sketcher.Constraint("Horizontal", 19, 2, 20, 2),
    Sketcher.Constraint("Horizontal", 18, 2, 21, 2),
    Sketcher.Constraint("Equal", 18, 20),
    Sketcher.Constraint("DistanceX", 10, 2, 10, 1, Q("2 mm")),
    Sketcher.Constraint("Angle", 0, Q("-24 deg")),
    Sketcher.Constraint("Distance", 14, Q("2 mm")),
    Sketcher.Constraint("DistanceX", 2, 2, 2, 1, Q("3.7 mm")),
    Sketcher.Constraint("DistanceX", 4, 2, 4, 1, Q("7.8 mm")),
    Sketcher.Constraint("DistanceX", 6, 2, 6, 1, Q("24.2 mm")),
    Sketcher.Constraint("DistanceX", 8, 1, 8, 2, Q("2.7 mm")),
    Sketcher.Constraint("DistanceX", 16, 1, 16, 2, Q("3.5 mm")),
    Sketcher.Constraint("DistanceY", 1, 2, 1, 1, Q("1.6 mm")),
    Sketcher.Constraint("DistanceY", 7, 1, 7, 2, Q("58.3 mm")),
    Sketcher.Constraint("DistanceY", 13, 2, 13, 1, Q("2.5 mm")),
    Sketcher.Constraint("DistanceY", 17, 1, 17, 2, Q("51.38 mm")),
    Sketcher.Constraint("DistanceY", 4, 2, 9, 2, Q("22.2 mm")),
    Sketcher.Constraint("DistanceY", 5, 2, 16, 2, Q("3.2 mm")),
    Sketcher.Constraint("DistanceX", 20, 2, 19, 2, Q("11.7 mm")),
    Sketcher.Constraint("DistanceX", 16, 2, 5, 2, Q("2.75 mm")),
    Sketcher.Constraint("Distance", 15, Q("5.687298 mm")),
    Sketcher.Constraint("DistanceY", 3, 2, 3, 1, Q("13.523591 mm")),
    Sketcher.Constraint("DistanceY", 5, 2, 5, 1, Q("41.220361 mm")),
    Sketcher.Constraint("DistanceY", 11, 1, 11, 2, Q("2.178671 mm")),
    Sketcher.Constraint("DistanceX", 12, 1, 12, 2, Q("34.562197 mm")),
    Sketcher.Constraint("DistanceY", -1, 1, 0, 2, Q("36.336179 mm")),
    Sketcher.Constraint("DistanceY", -1, 1, 15, 2, Q("37.420988 mm")),
    Sketcher.Constraint("DistanceX", -1, 1, 0, 2, Q("92.205606 mm")),
])
pad3 = body2.newObject("PartDesign::Pad", "Pad002")
pad3.Profile = sketch10
pad3.Length = 12.4

# Sketch on XY plane
sketch11 = body2.newObject("Sketcher::SketchObject", "Sketch010")
sketch11.AttachmentSupport = (doc.getObject("XY_Plane001"), [""])
sketch11.MapMode = "FlatFace"
sketch11.AttachmentOffset = App.Placement(App.Vector(0, 0, 12.4), App.Rotation())
sketch11.addGeometry([
    Part.LineSegment(App.Vector(56.5, 34.7, 0), App.Vector(92.2, 34.7, 0)),  # 0
    Part.LineSegment(App.Vector(92.2, 34.7, 0), App.Vector(92.2, 36.3, 0)),  # 1
    Part.LineSegment(App.Vector(92.2, 36.3, 0), App.Vector(89.8, 37.4, 0)),  # 2
    Part.LineSegment(App.Vector(89.8, 37.4, 0), App.Vector(56.5, 38.3, 0)),  # 3
    Part.LineSegment(App.Vector(56.5, 38.3, 0), App.Vector(56.5, 34.7, 0)),  # 4
    Part.LineSegment(App.Vector(57.2, 43.4, 0), App.Vector(59.2, 43.4, 0)),  # 5
    Part.LineSegment(App.Vector(59.2, 43.4, 0), App.Vector(89.8, 43.1, 0)),  # 6
    Part.LineSegment(App.Vector(89.8, 43.1, 0), App.Vector(91.8, 43.1, 0)),  # 7
    Part.LineSegment(App.Vector(91.8, 43.1, 0), App.Vector(91.8, 45.6, 0)),  # 8
    Part.LineSegment(App.Vector(91.8, 45.6, 0), App.Vector(57.2, 45.6, 0)),  # 9
    Part.LineSegment(App.Vector(57.2, 45.6, 0), App.Vector(57.2, 43.4, 0)),  # 10
], False)
sketch11.addConstraint([
    Sketcher.Constraint("Coincident", 0, 2, 1, 1),
    Sketcher.Constraint("Coincident", 1, 2, 2, 1),
    Sketcher.Constraint("Coincident", 2, 2, 3, 1),
    Sketcher.Constraint("Coincident", 3, 2, 4, 1),
    Sketcher.Constraint("Coincident", 4, 2, 0, 1),
    Sketcher.Constraint("Coincident", 5, 2, 6, 1),
    Sketcher.Constraint("Coincident", 6, 2, 7, 1),
    Sketcher.Constraint("Coincident", 7, 2, 8, 1),
    Sketcher.Constraint("Coincident", 8, 2, 9, 1),
    Sketcher.Constraint("Coincident", 9, 2, 10, 1),
    Sketcher.Constraint("Coincident", 10, 2, 5, 1),
    Sketcher.Constraint("Horizontal", 0),
    Sketcher.Constraint("Vertical", 1),
    Sketcher.Constraint("Vertical", 4),
    Sketcher.Constraint("Horizontal", 5),
    Sketcher.Constraint("Vertical", 8),
    Sketcher.Constraint("Horizontal", 9),
    Sketcher.Constraint("Vertical", 10),
    Sketcher.Constraint("DistanceX", 5, 1, 5, 2, Q("2 mm")),
    Sketcher.Constraint("Angle", 2, Q("156 deg")),
    Sketcher.Constraint("Distance", 7, Q("2 mm")),
    Sketcher.Constraint("DistanceX", 0, 1, 0, 2, Q("35.7 mm")),
    Sketcher.Constraint("DistanceY", 1, 1, 1, 2, Q("1.6 mm")),
    Sketcher.Constraint("DistanceY", 8, 1, 8, 2, Q("2.5 mm")),
    Sketcher.Constraint("DistanceX", 5, 2, 1, 2, Q("33 mm")),
    Sketcher.Constraint("DistanceY", 10, 2, 10, 1, Q("2.178671 mm")),
    Sketcher.Constraint("DistanceY", 2, 2, 5, 2, Q("5.9916 mm")),
    Sketcher.Constraint("DistanceY", 2, 2, 6, 2, Q("5.687298 mm")),
    Sketcher.Constraint("DistanceX", 9, 2, 9, 1, Q("34.562197 mm")),
    Sketcher.Constraint("DistanceY", 4, 2, 4, 1, Q("3.556048 mm")),
    Sketcher.Constraint("DistanceY", -1, 1, 0, 2, Q("34.736179 mm")),
    Sketcher.Constraint("DistanceY", -1, 1, 2, 2, Q("37.420988 mm")),
    Sketcher.Constraint("DistanceX", -1, 1, 0, 2, Q("92.205606 mm")),
])
pad4 = body2.newObject("PartDesign::Pad", "Pad003")
pad4.Profile = sketch11
pad4.Length = 2

# Sketch on XY plane
sketch12 = body2.newObject("Sketcher::SketchObject", "Sketch011")
sketch12.AttachmentSupport = (doc.getObject("XY_Plane001"), [""])
sketch12.MapMode = "FlatFace"
sketch12.AttachmentOffset = App.Placement(App.Vector(0, 0, 12.4), App.Rotation())
sketch12.addGeometry([
    Part.LineSegment(App.Vector(58, 35, 0), App.Vector(58, -18, 0)),
    Part.LineSegment(App.Vector(58, -18, 0), App.Vector(79, -18, 0)),
    Part.LineSegment(App.Vector(79, -18, 0), App.Vector(79, 35, 0)),
    Part.LineSegment(App.Vector(79, 35, 0), App.Vector(58, 35, 0)),
], False)
sketch12.addConstraint([
    Sketcher.Constraint("Coincident", 0, 2, 1, 1),
    Sketcher.Constraint("Coincident", 1, 2, 2, 1),
    Sketcher.Constraint("Coincident", 2, 2, 3, 1),
    Sketcher.Constraint("Coincident", 3, 2, 0, 1),
    Sketcher.Constraint("Vertical", 0),
    Sketcher.Constraint("Horizontal", 1),
    Sketcher.Constraint("Vertical", 2),
    Sketcher.Constraint("Horizontal", 3),
    Sketcher.Constraint("DistanceX", 1, 1, 1, 2, Q("21 mm")),
    Sketcher.Constraint("DistanceY", 0, 2, 0, 1, Q("53.143952 mm")),
    Sketcher.Constraint("DistanceY", -1, 1, 2, 2, Q("34.736179 mm")),
    Sketcher.Constraint("DistanceX", -1, 1, 0, 2, Q("58.105606 mm")),
])
pocket8 = body2.newObject("PartDesign::Pocket", "Pocket007")
pocket8.Profile = sketch12
pocket8.Length = 10

# Sketch on XZ plane
sketch13 = body2.newObject("Sketcher::SketchObject", "Sketch012")
sketch13.AttachmentSupport = (doc.getObject("XZ_Plane001"), [""])
sketch13.MapMode = "FlatFace"
sketch13.AttachmentOffset = App.Placement(App.Vector(0, 0, -21.212588), App.Rotation())
sketch13.addGeometry(Part.Circle(App.Vector(83.8, 6.2, 0), App.Vector(0, 0, 1), 2.6), False)
sketch13.addConstraint([
    Sketcher.Constraint("Diameter", 0, Q("5.2 mm")),
    Sketcher.Constraint("DistanceY", -1, 1, 0, 3, Q("6.2 mm")),
    Sketcher.Constraint("DistanceX", -1, 1, 0, 3, Q("83.805606 mm")),
])
pocket9 = body2.newObject("PartDesign::Pocket", "Pocket008")
pocket9.Profile = sketch13
pocket9.Type = "ThroughAll"

# Sketch on XZ plane
sketch14 = body2.newObject("Sketcher::SketchObject", "Sketch013")
sketch14.AttachmentSupport = (doc.getObject("XZ_Plane001"), [""])
sketch14.MapMode = "FlatFace"
sketch14.AttachmentOffset = App.Placement(App.Vector(0, 0, -21.212588), App.Rotation())
sketch14.addGeometry([
    Part.LineSegment(App.Vector(87, 4, 0), App.Vector(87, 12, 0)),
    Part.LineSegment(App.Vector(87, 12, 0), App.Vector(81, 12, 0)),
    Part.LineSegment(App.Vector(81, 12, 0), App.Vector(81, 4, 0)),
    Part.LineSegment(App.Vector(81, 4, 0), App.Vector(87, 4, 0)),
], False)
sketch14.addConstraint([
    Sketcher.Constraint("Coincident", 0, 2, 1, 1),
    Sketcher.Constraint("Coincident", 1, 2, 2, 1),
    Sketcher.Constraint("Coincident", 2, 2, 3, 1),
    Sketcher.Constraint("Coincident", 3, 2, 0, 1),
    Sketcher.Constraint("Vertical", 0),
    Sketcher.Constraint("Horizontal", 1),
    Sketcher.Constraint("Vertical", 2),
    Sketcher.Constraint("Horizontal", 3),
    Sketcher.Constraint("DistanceX", 1, 2, 1, 1, Q("6.2 mm")),
    Sketcher.Constraint("DistanceY", 0, 1, 0, 2, Q("8.8 mm")),
    Sketcher.Constraint("DistanceY", -1, 1, 0, 2, Q("12.4 mm")),
    Sketcher.Constraint("DistanceX", -1, 1, 0, 2, Q("86.905606 mm")),
])
pocket10 = body2.newObject("PartDesign::Pocket", "Pocket009")
pocket10.Profile = sketch14
pocket10.Length = 16.223591

# Sketch on XZ plane
sketch15 = body2.newObject("Sketcher::SketchObject", "Sketch014")
sketch15.AttachmentSupport = (doc.getObject("XZ_Plane001"), [""])
sketch15.MapMode = "FlatFace"
sketch15.AttachmentOffset = App.Placement(App.Vector(0, 0, -45.591259), App.Rotation())
sketch15.addGeometry(Part.Circle(App.Vector(83.8, 6.2, 0), App.Vector(0, 0, 1), 4.3), False)
sketch15.addConstraint([
    Sketcher.Constraint("Diameter", 0, Q("8.7 mm")),
    Sketcher.Constraint("DistanceY", -1, 1, 0, 3, Q("6.2 mm")),
    Sketcher.Constraint("DistanceX", -1, 1, 0, 3, Q("83.805606 mm")),
])
pocket11 = body2.newObject("PartDesign::Pocket", "Pocket010")
pocket11.Profile = sketch15
pocket11.Length = 4.1
pocket11.Reversed = True

# Sketch on XZ plane
sketch16 = body2.newObject("Sketcher::SketchObject", "Sketch015")
sketch16.AttachmentSupport = (doc.getObject("XZ_Plane001"), [""])
sketch16.MapMode = "FlatFace"
sketch16.AttachmentOffset = App.Placement(App.Vector(0, 0, -34.736179), App.Rotation())
sketch16.addGeometry([
    Part.ArcOfCircle(Part.Circle(App.Vector(64.5, 7.4, 0), App.Vector(0, 0, 1), 0.6), math.radians(90), math.radians(180)),  # 0
    Part.LineSegment(App.Vector(63.9, 7.4, 0), App.Vector(63.9, 4.6, 0)),  # 1
    Part.ArcOfCircle(Part.Circle(App.Vector(64.5, 4.6, 0), App.Vector(0, 0, 1), 0.6), math.radians(180), math.radians(270)),  # 2
    Part.LineSegment(App.Vector(64.5, 4, 0), App.Vector(72.8, 4, 0)),  # 3
    Part.ArcOfCircle(Part.Circle(App.Vector(72.8, 4.6, 0), App.Vector(0, 0, 1), 0.6), math.radians(-90), math.radians(0)),  # 4
    Part.LineSegment(App.Vector(73.4, 4.6, 0), App.Vector(73.4, 7.4, 0)),  # 5
    Part.ArcOfCircle(Part.Circle(App.Vector(72.8, 7.4, 0), App.Vector(0, 0, 1), 0.6), math.radians(0), math.radians(90)),  # 6
    Part.LineSegment(App.Vector(72.8, 8, 0), App.Vector(64.5, 8, 0)),  # 7
], False)
sketch16.addConstraint([
    Sketcher.Constraint("Tangent", 0, 2, 1, 1),
    Sketcher.Constraint("Tangent", 1, 2, 2, 1),
    Sketcher.Constraint("Tangent", 2, 2, 3, 1),
    Sketcher.Constraint("Tangent", 3, 2, 4, 1),
    Sketcher.Constraint("Tangent", 4, 2, 5, 1),
    Sketcher.Constraint("Tangent", 5, 2, 6, 1),
    Sketcher.Constraint("Tangent", 6, 2, 7, 1),
    Sketcher.Constraint("Tangent", 7, 2, 0, 1),
    Sketcher.Constraint("Vertical", 1),
    Sketcher.Constraint("Horizontal", 3),
    Sketcher.Constraint("Vertical", 5),
    Sketcher.Constraint("Horizontal", 7),
    Sketcher.Constraint("Equal", 0, 2),
    Sketcher.Constraint("Equal", 2, 4),
    Sketcher.Constraint("Equal", 4, 6),
    Sketcher.Constraint("Radius", 0, Q("0.6 mm")),
    Sketcher.Constraint("DistanceX", 3, 1, 3, 2, Q("8.3 mm")),
    Sketcher.Constraint("DistanceY", 1, 2, 1, 1, Q("2.8 mm")),
    Sketcher.Constraint("DistanceY", -1, 1, 2, 2, Q("4 mm")),
    Sketcher.Constraint("DistanceX", -1, 1, 0, 3, Q("64.455606 mm")),
])
pocket12 = body2.newObject("PartDesign::Pocket", "Pocket011")
pocket12.Profile = sketch16
pocket12.Type = "ThroughAll"

# Sketch on XZ plane
sketch17 = body2.newObject("Sketcher::SketchObject", "Sketch016")
sketch17.AttachmentSupport = (doc.getObject("XZ_Plane001"), [""])
sketch17.MapMode = "FlatFace"
sketch17.AttachmentOffset = App.Placement(App.Vector(0, 0, -45.591259), App.Rotation())
sketch17.addGeometry([
    Part.ArcOfCircle(Part.Circle(App.Vector(72.8, 7.4, 0), App.Vector(0, 0, 1), 2.9), math.radians(0), math.radians(90)),  # 0
    Part.LineSegment(App.Vector(75.6, 7.4, 0), App.Vector(75.6, 4.6, 0)),  # 1
    Part.ArcOfCircle(Part.Circle(App.Vector(72.8, 4.6, 0), App.Vector(0, 0, 1), 2.9), math.radians(-90), math.radians(0)),  # 2
    Part.LineSegment(App.Vector(72.8, 1.8, 0), App.Vector(64.5, 1.8, 0)),  # 3
    Part.ArcOfCircle(Part.Circle(App.Vector(64.5, 4.6, 0), App.Vector(0, 0, 1), 2.9), math.radians(180), math.radians(270)),  # 4
    Part.LineSegment(App.Vector(61.6, 4.6, 0), App.Vector(61.6, 7.4, 0)),  # 5
    Part.ArcOfCircle(Part.Circle(App.Vector(64.5, 7.4, 0), App.Vector(0, 0, 1), 2.9), math.radians(90), math.radians(180)),  # 6
    Part.LineSegment(App.Vector(64.5, 10.2, 0), App.Vector(72.8, 10.2, 0)),  # 7
], False)
sketch17.addConstraint([
    Sketcher.Constraint("Tangent", 0, 1, 1, 1),
    Sketcher.Constraint("Tangent", 1, 2, 2, 2),
    Sketcher.Constraint("Tangent", 2, 1, 3, 1),
    Sketcher.Constraint("Tangent", 3, 2, 4, 2),
    Sketcher.Constraint("Tangent", 4, 1, 5, 1),
    Sketcher.Constraint("Tangent", 5, 2, 6, 2),
    Sketcher.Constraint("Tangent", 6, 1, 7, 1),
    Sketcher.Constraint("Tangent", 7, 2, 0, 2),
    Sketcher.Constraint("Vertical", 1),
    Sketcher.Constraint("Horizontal", 3),
    Sketcher.Constraint("Vertical", 5),
    Sketcher.Constraint("Horizontal", 7),
    Sketcher.Constraint("Equal", 0, 2),
    Sketcher.Constraint("Equal", 2, 4),
    Sketcher.Constraint("Equal", 4, 6),
    Sketcher.Constraint("Radius", 0, Q("2.85 mm")),
    Sketcher.Constraint("DistanceX", 3, 2, 3, 1, Q("8.3 mm")),
    Sketcher.Constraint("DistanceY", 1, 2, 1, 1, Q("2.8 mm")),
    Sketcher.Constraint("DistanceY", -1, 1, 0, 3, Q("7.4 mm")),
    Sketcher.Constraint("DistanceX", -1, 1, 0, 3, Q("72.755606 mm")),
])
pocket13 = body2.newObject("PartDesign::Pocket", "Pocket012")
pocket13.Profile = sketch17
pocket13.Length = 10.055079
pocket13.Reversed = True

# Sketch on XZ plane
sketch18 = body2.newObject("Sketcher::SketchObject", "Sketch017")
sketch18.AttachmentSupport = (doc.getObject("XZ_Plane001"), [""])
sketch18.MapMode = "FlatFace"
sketch18.AttachmentOffset = App.Placement(App.Vector(0, 0, -37.436179), App.Rotation())
sketch18.addGeometry([
    Part.LineSegment(App.Vector(80.7, 12.4, 0), App.Vector(80.7, 3.6, 0)),  # 0
    Part.LineSegment(App.Vector(80.7, 3.6, 0), App.Vector(83.8, 3.6, 0)),  # 1
    Part.LineSegment(App.Vector(83.8, 3.6, 0), App.Vector(86.9, 3.6, 0)),  # 2
    Part.LineSegment(App.Vector(86.9, 3.6, 0), App.Vector(86.9, 12.4, 0)),  # 3
    Part.LineSegment(App.Vector(86.9, 12.4, 0), App.Vector(80.7, 12.4, 0)),  # 4
    Part.ArcOfCircle(Part.Circle(App.Vector(83.8, 6.2, 0), App.Vector(0, 0, 1), 2.6), math.radians(-90), math.radians(0)),  # 5
    Part.ArcOfCircle(Part.Circle(App.Vector(83.8, 6.2, 0), App.Vector(0, 0, 1), 2.6), math.radians(0), math.radians(270)),  # 6
], False)
sketch18.addConstraint([
    Sketcher.Constraint("Coincident", 0, 2, 1, 1),
    Sketcher.Constraint("Coincident", 1, 2, 2, 1),
    Sketcher.Constraint("Coincident", 2, 2, 3, 1),
    Sketcher.Constraint("Coincident", 3, 2, 4, 1),
    Sketcher.Constraint("Coincident", 4, 2, 0, 1),
    Sketcher.Constraint("Tangent", 5, 1, 6, 2),
    Sketcher.Constraint("Coincident", 6, 1, 5, 2),
    Sketcher.Constraint("Vertical", 0),
    Sketcher.Constraint("Horizontal", 1),
    Sketcher.Constraint("Horizontal", 2),
    Sketcher.Constraint("Vertical", 3),
    Sketcher.Constraint("Horizontal", 4),
    Sketcher.Constraint("Coincident", 5, 1, 1, 2),
    Sketcher.Constraint("Horizontal", 5, 3, 6, 1),
    Sketcher.Constraint("Vertical", 6, 3, 1, 2),
    Sketcher.Constraint("Equal", 1, 2),
    Sketcher.Constraint("Radius", 5, Q("2.6 mm")),
    Sketcher.Constraint("DistanceX", 1, 1, 1, 2, Q("3.1 mm")),
    Sketcher.Constraint("DistanceY", 0, 2, 0, 1, Q("8.8 mm")),
    Sketcher.Constraint("DistanceY", -1, 1, 5, 3, Q("6.2 mm")),
    Sketcher.Constraint("DistanceX", -1, 1, 5, 3, Q("83.805606 mm")),
])
pocket14 = body2.newObject("PartDesign::Pocket", "Pocket013")
pocket14.Profile = sketch18
pocket14.Length = 1.09
body3 = doc.addObject("PartDesign::Body", "Body002")
doc.recompute()

mirroring = doc.addObject("Part::Mirroring", "Mirroring")
mirroring.Source = body2
mirroring.Base = App.Vector(0, 0, 0)
mirroring.Normal = App.Vector(1, 0, 0)
body3.BaseFeature = mirroring
doc.recompute()
body.Visibility = False
mirroring.Visibility = False

doc.recompute()
